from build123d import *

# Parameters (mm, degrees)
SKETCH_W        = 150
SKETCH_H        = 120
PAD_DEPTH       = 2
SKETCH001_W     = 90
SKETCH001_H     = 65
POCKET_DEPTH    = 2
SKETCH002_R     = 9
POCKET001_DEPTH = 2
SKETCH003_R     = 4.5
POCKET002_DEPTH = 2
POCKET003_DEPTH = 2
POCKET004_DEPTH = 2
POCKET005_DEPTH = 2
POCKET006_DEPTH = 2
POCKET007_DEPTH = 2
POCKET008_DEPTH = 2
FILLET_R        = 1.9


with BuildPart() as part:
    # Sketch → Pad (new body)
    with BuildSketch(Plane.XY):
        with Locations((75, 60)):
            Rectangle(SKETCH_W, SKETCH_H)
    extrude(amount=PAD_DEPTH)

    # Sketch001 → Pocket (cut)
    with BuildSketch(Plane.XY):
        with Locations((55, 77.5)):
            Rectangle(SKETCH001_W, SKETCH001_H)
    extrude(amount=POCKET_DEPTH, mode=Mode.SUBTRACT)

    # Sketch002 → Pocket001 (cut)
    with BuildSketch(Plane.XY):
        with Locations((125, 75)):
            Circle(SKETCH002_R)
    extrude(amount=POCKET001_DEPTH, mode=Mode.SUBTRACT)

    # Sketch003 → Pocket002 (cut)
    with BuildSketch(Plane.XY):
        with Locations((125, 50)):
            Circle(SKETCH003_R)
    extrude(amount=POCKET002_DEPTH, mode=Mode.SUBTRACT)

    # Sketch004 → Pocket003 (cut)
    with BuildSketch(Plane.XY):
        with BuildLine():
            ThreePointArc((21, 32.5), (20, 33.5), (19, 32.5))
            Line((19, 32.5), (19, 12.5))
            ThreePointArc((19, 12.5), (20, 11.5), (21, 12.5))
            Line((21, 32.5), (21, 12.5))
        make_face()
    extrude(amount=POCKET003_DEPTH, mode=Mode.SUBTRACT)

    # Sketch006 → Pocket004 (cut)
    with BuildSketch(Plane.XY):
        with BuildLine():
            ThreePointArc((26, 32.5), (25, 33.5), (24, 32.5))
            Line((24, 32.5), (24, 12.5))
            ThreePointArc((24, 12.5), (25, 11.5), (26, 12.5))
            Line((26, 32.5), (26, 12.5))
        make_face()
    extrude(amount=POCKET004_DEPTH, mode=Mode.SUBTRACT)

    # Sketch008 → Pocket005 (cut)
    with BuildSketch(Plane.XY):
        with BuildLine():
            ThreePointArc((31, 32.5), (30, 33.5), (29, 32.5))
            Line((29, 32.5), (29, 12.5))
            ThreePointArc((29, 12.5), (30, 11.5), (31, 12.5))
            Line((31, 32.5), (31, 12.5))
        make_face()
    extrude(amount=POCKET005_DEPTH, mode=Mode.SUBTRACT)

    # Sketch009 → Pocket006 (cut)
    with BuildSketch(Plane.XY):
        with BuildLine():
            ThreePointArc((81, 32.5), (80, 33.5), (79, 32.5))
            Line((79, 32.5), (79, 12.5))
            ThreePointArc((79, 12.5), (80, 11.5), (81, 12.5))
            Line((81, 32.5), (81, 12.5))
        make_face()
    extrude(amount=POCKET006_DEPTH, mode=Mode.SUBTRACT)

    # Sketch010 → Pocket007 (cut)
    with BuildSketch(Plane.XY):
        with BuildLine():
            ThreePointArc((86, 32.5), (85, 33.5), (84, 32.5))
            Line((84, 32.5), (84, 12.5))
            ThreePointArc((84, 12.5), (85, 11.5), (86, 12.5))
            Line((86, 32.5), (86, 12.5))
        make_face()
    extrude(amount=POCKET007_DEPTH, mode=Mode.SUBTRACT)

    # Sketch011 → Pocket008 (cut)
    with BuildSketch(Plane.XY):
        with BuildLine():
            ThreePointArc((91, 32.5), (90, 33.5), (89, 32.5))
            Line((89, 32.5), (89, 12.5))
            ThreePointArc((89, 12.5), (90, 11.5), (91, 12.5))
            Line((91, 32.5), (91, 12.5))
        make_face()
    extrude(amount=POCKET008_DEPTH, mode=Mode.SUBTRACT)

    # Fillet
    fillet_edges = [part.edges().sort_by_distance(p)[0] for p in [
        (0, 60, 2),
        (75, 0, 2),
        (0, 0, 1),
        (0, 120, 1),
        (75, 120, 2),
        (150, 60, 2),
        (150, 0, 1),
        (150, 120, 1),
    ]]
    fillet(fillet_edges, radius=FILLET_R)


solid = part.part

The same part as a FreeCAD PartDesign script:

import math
import FreeCAD as App
import Part
import Sketcher
from FreeCAD import Vector
Q = App.Units.Quantity


def edges_at(feature, points):
    """Names of the edges that pass closest to the given points."""
    edges = feature.Shape.Edges
    near = lambda p: min(range(len(edges)), key=lambda i: edges[i].distToShape(Part.Vertex(*p))[0])
    return sorted({f"Edge{near(p) + 1}" for p in points})


def add_polygon(sketch, points):
    """Adds a closed chain of lines whose ends are joined by coincident constraints."""
    first, n = sketch.GeometryCount, len(points)
    for a, b in zip(points, points[1:] + points[:1]):
        sketch.addGeometry(Part.LineSegment(App.Vector(*a, 0), App.Vector(*b, 0)), False)
    for i in range(n):
        sketch.addConstraint(Sketcher.Constraint("Coincident", first + i, 2, first + (i + 1) % n, 1))

doc = App.newDocument("Part")
body = doc.addObject("PartDesign::Body", "Body")

sketch1 = doc.addObject("Sketcher::SketchObject", "Sketch")
body.addObject(sketch1)
sketch1.AttachmentSupport = (doc.XY_Plane, [""])
sketch1.MapMode = "FlatFace"
add_polygon(sketch1, [(0, 120), (0, 0), (150, 0), (150, 120)])
sketch1.addConstraint([
    Sketcher.Constraint("Vertical", 0),
    Sketcher.Constraint("Horizontal", 1),
    Sketcher.Constraint("Vertical", 2),
    Sketcher.Constraint("Horizontal", 3),
    Sketcher.Constraint("Coincident", 0, 2, -1, 1),
    Sketcher.Constraint("DistanceX", 1, 1, 1, 2, Q("150 mm")),
    Sketcher.Constraint("DistanceY", 0, 2, 0, 1, Q("120 mm")),
])
pad1 = doc.addObject("PartDesign::Pad", "Pad")
body.addObject(pad1)
pad1.Profile = sketch1
pad1.Length = 2

sketch2 = doc.addObject("Sketcher::SketchObject", "Sketch001")
body.addObject(sketch2)
sketch2.AttachmentSupport = (doc.XY_Plane, [""])
sketch2.MapMode = "FlatFace"
add_polygon(sketch2, [(10, 110), (10, 45), (100, 45), (100, 110)])
sketch2.addConstraint([
    Sketcher.Constraint("Vertical", 0),
    Sketcher.Constraint("Horizontal", 1),
    Sketcher.Constraint("Vertical", 2),
    Sketcher.Constraint("Horizontal", 3),
    Sketcher.Constraint("DistanceX", 1, 1, 1, 2, Q("90 mm")),
    Sketcher.Constraint("DistanceY", 0, 2, 0, 1, Q("65 mm")),
    Sketcher.Constraint("DistanceX", -1, 1, 0, 2, Q("10 mm")),
    Sketcher.Constraint("DistanceY", -1, 1, 0, 2, Q("45 mm")),
])
pocket1 = doc.addObject("PartDesign::Pocket", "Pocket")
body.addObject(pocket1)
pocket1.Profile = sketch2
pocket1.Length = 2
pocket1.Reversed = True

sketch3 = doc.addObject("Sketcher::SketchObject", "Sketch002")
body.addObject(sketch3)
sketch3.AttachmentSupport = (doc.XY_Plane, [""])
sketch3.MapMode = "FlatFace"
sketch3.addGeometry(Part.Circle(Vector(125, 75, 0), Vector(0, 0, 1), 9), False)
sketch3.addConstraint([
    Sketcher.Constraint("Diameter", 0, Q("18 mm")),
    Sketcher.Constraint("DistanceX", -1, 1, 0, 3, Q("125 mm")),
    Sketcher.Constraint("DistanceY", -1, 1, 0, 3, Q("75 mm")),
])
pocket2 = doc.addObject("PartDesign::Pocket", "Pocket001")
body.addObject(pocket2)
pocket2.Profile = sketch3
pocket2.Length = 2
pocket2.Reversed = True

sketch4 = doc.addObject("Sketcher::SketchObject", "Sketch003")
body.addObject(sketch4)
sketch4.AttachmentSupport = (doc.XY_Plane, [""])
sketch4.MapMode = "FlatFace"
sketch4.addGeometry(Part.Circle(Vector(125, 50, 0), Vector(0, 0, 1), 4.5), False)
sketch4.addConstraint([
    Sketcher.Constraint("Diameter", 0, Q("9 mm")),
    Sketcher.Constraint("DistanceX", -1, 1, 0, 3, Q("125 mm")),
    Sketcher.Constraint("DistanceY", -1, 1, 0, 3, Q("50 mm")),
])
pocket3 = doc.addObject("PartDesign::Pocket", "Pocket002")
body.addObject(pocket3)
pocket3.Profile = sketch4
pocket3.Length = 2
pocket3.Reversed = True

sketch5 = doc.addObject("Sketcher::SketchObject", "Sketch004")
body.addObject(sketch5)
sketch5.AttachmentSupport = (doc.XY_Plane, [""])
sketch5.MapMode = "FlatFace"
sketch5.addGeometry([
    Part.ArcOfCircle(Part.Circle(Vector(20, 32.5, 0), Vector(0, 0, 1), 1), math.radians(0), math.radians(180)),
    Part.LineSegment(Vector(19, 32.5, 0), Vector(19, 12.5, 0)),
    Part.ArcOfCircle(Part.Circle(Vector(20, 12.5, 0), Vector(0, 0, 1), 1), math.radians(180), math.radians(360)),
    Part.LineSegment(Vector(21, 12.5, 0), Vector(21, 32.5, 0)),
], False)
sketch5.addConstraint([
    Sketcher.Constraint("Tangent", 0, 2, 1, 1),
    Sketcher.Constraint("Tangent", 1, 2, 2, 1),
    Sketcher.Constraint("Tangent", 2, 2, 3, 1),
    Sketcher.Constraint("Tangent", 3, 2, 0, 1),
    Sketcher.Constraint("Vertical", 1),
    Sketcher.Constraint("Vertical", 3),
    Sketcher.Constraint("Radius", 0, Q("1 mm")),
    Sketcher.Constraint("DistanceY", 1, 2, 1, 1, Q("20 mm")),
    Sketcher.Constraint("DistanceX", -1, 1, 0, 3, Q("20 mm")),
    Sketcher.Constraint("DistanceY", -1, 1, 0, 3, Q("32.5 mm")),
])
pocket4 = doc.addObject("PartDesign::Pocket", "Pocket003")
body.addObject(pocket4)
pocket4.Profile = sketch5
pocket4.Length = 2
pocket4.Reversed = True

sketch6 = doc.addObject("Sketcher::SketchObject", "Sketch005")
body.addObject(sketch6)
sketch6.AttachmentSupport = (doc.XY_Plane, [""])
sketch6.MapMode = "FlatFace"
sketch6.addGeometry([
    Part.ArcOfCircle(Part.Circle(Vector(25, 32.5, 0), Vector(0, 0, 1), 1), math.radians(0), math.radians(180)),
    Part.LineSegment(Vector(24, 32.5, 0), Vector(24, 12.5, 0)),
    Part.ArcOfCircle(Part.Circle(Vector(25, 12.5, 0), Vector(0, 0, 1), 1), math.radians(180), math.radians(360)),
    Part.LineSegment(Vector(26, 12.5, 0), Vector(26, 32.5, 0)),
], False)
sketch6.addConstraint([
    Sketcher.Constraint("Tangent", 0, 2, 1, 1),
    Sketcher.Constraint("Tangent", 1, 2, 2, 1),
    Sketcher.Constraint("Tangent", 2, 2, 3, 1),
    Sketcher.Constraint("Tangent", 3, 2, 0, 1),
    Sketcher.Constraint("Vertical", 1),
    Sketcher.Constraint("Vertical", 3),
    Sketcher.Constraint("Radius", 0, Q("1 mm")),
    Sketcher.Constraint("DistanceY", 1, 2, 1, 1, Q("20 mm")),
    Sketcher.Constraint("DistanceX", -1, 1, 0, 3, Q("25 mm")),
    Sketcher.Constraint("DistanceY", -1, 1, 0, 3, Q("32.5 mm")),
])
pocket5 = doc.addObject("PartDesign::Pocket", "Pocket004")
body.addObject(pocket5)
pocket5.Profile = sketch6
pocket5.Length = 2
pocket5.Reversed = True

sketch7 = doc.addObject("Sketcher::SketchObject", "Sketch006")
body.addObject(sketch7)
sketch7.AttachmentSupport = (doc.XY_Plane, [""])
sketch7.MapMode = "FlatFace"
sketch7.addGeometry([
    Part.ArcOfCircle(Part.Circle(Vector(30, 32.5, 0), Vector(0, 0, 1), 1), math.radians(0), math.radians(180)),
    Part.LineSegment(Vector(29, 32.5, 0), Vector(29, 12.5, 0)),
    Part.ArcOfCircle(Part.Circle(Vector(30, 12.5, 0), Vector(0, 0, 1), 1), math.radians(180), math.radians(360)),
    Part.LineSegment(Vector(31, 12.5, 0), Vector(31, 32.5, 0)),
], False)
sketch7.addConstraint([
    Sketcher.Constraint("Tangent", 0, 2, 1, 1),
    Sketcher.Constraint("Tangent", 1, 2, 2, 1),
    Sketcher.Constraint("Tangent", 2, 2, 3, 1),
    Sketcher.Constraint("Tangent", 3, 2, 0, 1),
    Sketcher.Constraint("Vertical", 1),
    Sketcher.Constraint("Vertical", 3),
    Sketcher.Constraint("Radius", 0, Q("1 mm")),
    Sketcher.Constraint("DistanceY", 1, 2, 1, 1, Q("20 mm")),
    Sketcher.Constraint("DistanceX", -1, 1, 0, 3, Q("30 mm")),
    Sketcher.Constraint("DistanceY", -1, 1, 0, 3, Q("32.5 mm")),
])
pocket6 = doc.addObject("PartDesign::Pocket", "Pocket005")
body.addObject(pocket6)
pocket6.Profile = sketch7
pocket6.Length = 2
pocket6.Reversed = True

sketch8 = doc.addObject("Sketcher::SketchObject", "Sketch007")
body.addObject(sketch8)
sketch8.AttachmentSupport = (doc.XY_Plane, [""])
sketch8.MapMode = "FlatFace"
sketch8.addGeometry([
    Part.ArcOfCircle(Part.Circle(Vector(80, 32.5, 0), Vector(0, 0, 1), 1), math.radians(0), math.radians(180)),
    Part.LineSegment(Vector(79, 32.5, 0), Vector(79, 12.5, 0)),
    Part.ArcOfCircle(Part.Circle(Vector(80, 12.5, 0), Vector(0, 0, 1), 1), math.radians(180), math.radians(360)),
    Part.LineSegment(Vector(81, 12.5, 0), Vector(81, 32.5, 0)),
], False)
sketch8.addConstraint([
    Sketcher.Constraint("Tangent", 0, 2, 1, 1),
    Sketcher.Constraint("Tangent", 1, 2, 2, 1),
    Sketcher.Constraint("Tangent", 2, 2, 3, 1),
    Sketcher.Constraint("Tangent", 3, 2, 0, 1),
    Sketcher.Constraint("Vertical", 1),
    Sketcher.Constraint("Vertical", 3),
    Sketcher.Constraint("Radius", 0, Q("1 mm")),
    Sketcher.Constraint("DistanceY", 1, 2, 1, 1, Q("20 mm")),
    Sketcher.Constraint("DistanceX", -1, 1, 0, 3, Q("80 mm")),
    Sketcher.Constraint("DistanceY", -1, 1, 0, 3, Q("32.5 mm")),
])
pocket7 = doc.addObject("PartDesign::Pocket", "Pocket006")
body.addObject(pocket7)
pocket7.Profile = sketch8
pocket7.Length = 2
pocket7.Reversed = True

sketch9 = doc.addObject("Sketcher::SketchObject", "Sketch008")
body.addObject(sketch9)
sketch9.AttachmentSupport = (doc.XY_Plane, [""])
sketch9.MapMode = "FlatFace"
sketch9.addGeometry([
    Part.ArcOfCircle(Part.Circle(Vector(85, 32.5, 0), Vector(0, 0, 1), 1), math.radians(0), math.radians(180)),
    Part.LineSegment(Vector(84, 32.5, 0), Vector(84, 12.5, 0)),
    Part.ArcOfCircle(Part.Circle(Vector(85, 12.5, 0), Vector(0, 0, 1), 1), math.radians(180), math.radians(360)),
    Part.LineSegment(Vector(86, 12.5, 0), Vector(86, 32.5, 0)),
], False)
sketch9.addConstraint([
    Sketcher.Constraint("Tangent", 0, 2, 1, 1),
    Sketcher.Constraint("Tangent", 1, 2, 2, 1),
    Sketcher.Constraint("Tangent", 2, 2, 3, 1),
    Sketcher.Constraint("Tangent", 3, 2, 0, 1),
    Sketcher.Constraint("Vertical", 1),
    Sketcher.Constraint("Vertical", 3),
    Sketcher.Constraint("Radius", 0, Q("1 mm")),
    Sketcher.Constraint("DistanceY", 1, 2, 1, 1, Q("20 mm")),
    Sketcher.Constraint("DistanceX", -1, 1, 0, 3, Q("85 mm")),
    Sketcher.Constraint("DistanceY", -1, 1, 0, 3, Q("32.5 mm")),
])
pocket8 = doc.addObject("PartDesign::Pocket", "Pocket007")
body.addObject(pocket8)
pocket8.Profile = sketch9
pocket8.Length = 2
pocket8.Reversed = True

sketch10 = doc.addObject("Sketcher::SketchObject", "Sketch009")
body.addObject(sketch10)
sketch10.AttachmentSupport = (doc.XY_Plane, [""])
sketch10.MapMode = "FlatFace"
sketch10.addGeometry([
    Part.ArcOfCircle(Part.Circle(Vector(90, 32.5, 0), Vector(0, 0, 1), 1), math.radians(0), math.radians(180)),
    Part.LineSegment(Vector(89, 32.5, 0), Vector(89, 12.5, 0)),
    Part.ArcOfCircle(Part.Circle(Vector(90, 12.5, 0), Vector(0, 0, 1), 1), math.radians(180), math.radians(360)),
    Part.LineSegment(Vector(91, 12.5, 0), Vector(91, 32.5, 0)),
], False)
sketch10.addConstraint([
    Sketcher.Constraint("Tangent", 0, 2, 1, 1),
    Sketcher.Constraint("Tangent", 1, 2, 2, 1),
    Sketcher.Constraint("Tangent", 2, 2, 3, 1),
    Sketcher.Constraint("Tangent", 3, 2, 0, 1),
    Sketcher.Constraint("Vertical", 1),
    Sketcher.Constraint("Vertical", 3),
    Sketcher.Constraint("Radius", 0, Q("1 mm")),
    Sketcher.Constraint("DistanceY", 1, 2, 1, 1, Q("20 mm")),
    Sketcher.Constraint("DistanceX", -1, 1, 0, 3, Q("90 mm")),
    Sketcher.Constraint("DistanceY", -1, 1, 0, 3, Q("32.5 mm")),
])
pocket9 = doc.addObject("PartDesign::Pocket", "Pocket008")
body.addObject(pocket9)
pocket9.Profile = sketch10
pocket9.Length = 2
pocket9.Reversed = True
doc.recompute()

fillet = doc.addObject("PartDesign::Fillet", "Fillet")
body.addObject(fillet)
fillet.Base = (pocket9, edges_at(pocket9, [
    (0, 60, 2),
    (75, 0, 2),
    (0, 0, 1),
    (0, 120, 1),
    (75, 120, 2),
    (150, 60, 2),
    (150, 0, 1),
    (150, 120, 1),
]))
fillet.Radius = 1.9

doc.recompute()
